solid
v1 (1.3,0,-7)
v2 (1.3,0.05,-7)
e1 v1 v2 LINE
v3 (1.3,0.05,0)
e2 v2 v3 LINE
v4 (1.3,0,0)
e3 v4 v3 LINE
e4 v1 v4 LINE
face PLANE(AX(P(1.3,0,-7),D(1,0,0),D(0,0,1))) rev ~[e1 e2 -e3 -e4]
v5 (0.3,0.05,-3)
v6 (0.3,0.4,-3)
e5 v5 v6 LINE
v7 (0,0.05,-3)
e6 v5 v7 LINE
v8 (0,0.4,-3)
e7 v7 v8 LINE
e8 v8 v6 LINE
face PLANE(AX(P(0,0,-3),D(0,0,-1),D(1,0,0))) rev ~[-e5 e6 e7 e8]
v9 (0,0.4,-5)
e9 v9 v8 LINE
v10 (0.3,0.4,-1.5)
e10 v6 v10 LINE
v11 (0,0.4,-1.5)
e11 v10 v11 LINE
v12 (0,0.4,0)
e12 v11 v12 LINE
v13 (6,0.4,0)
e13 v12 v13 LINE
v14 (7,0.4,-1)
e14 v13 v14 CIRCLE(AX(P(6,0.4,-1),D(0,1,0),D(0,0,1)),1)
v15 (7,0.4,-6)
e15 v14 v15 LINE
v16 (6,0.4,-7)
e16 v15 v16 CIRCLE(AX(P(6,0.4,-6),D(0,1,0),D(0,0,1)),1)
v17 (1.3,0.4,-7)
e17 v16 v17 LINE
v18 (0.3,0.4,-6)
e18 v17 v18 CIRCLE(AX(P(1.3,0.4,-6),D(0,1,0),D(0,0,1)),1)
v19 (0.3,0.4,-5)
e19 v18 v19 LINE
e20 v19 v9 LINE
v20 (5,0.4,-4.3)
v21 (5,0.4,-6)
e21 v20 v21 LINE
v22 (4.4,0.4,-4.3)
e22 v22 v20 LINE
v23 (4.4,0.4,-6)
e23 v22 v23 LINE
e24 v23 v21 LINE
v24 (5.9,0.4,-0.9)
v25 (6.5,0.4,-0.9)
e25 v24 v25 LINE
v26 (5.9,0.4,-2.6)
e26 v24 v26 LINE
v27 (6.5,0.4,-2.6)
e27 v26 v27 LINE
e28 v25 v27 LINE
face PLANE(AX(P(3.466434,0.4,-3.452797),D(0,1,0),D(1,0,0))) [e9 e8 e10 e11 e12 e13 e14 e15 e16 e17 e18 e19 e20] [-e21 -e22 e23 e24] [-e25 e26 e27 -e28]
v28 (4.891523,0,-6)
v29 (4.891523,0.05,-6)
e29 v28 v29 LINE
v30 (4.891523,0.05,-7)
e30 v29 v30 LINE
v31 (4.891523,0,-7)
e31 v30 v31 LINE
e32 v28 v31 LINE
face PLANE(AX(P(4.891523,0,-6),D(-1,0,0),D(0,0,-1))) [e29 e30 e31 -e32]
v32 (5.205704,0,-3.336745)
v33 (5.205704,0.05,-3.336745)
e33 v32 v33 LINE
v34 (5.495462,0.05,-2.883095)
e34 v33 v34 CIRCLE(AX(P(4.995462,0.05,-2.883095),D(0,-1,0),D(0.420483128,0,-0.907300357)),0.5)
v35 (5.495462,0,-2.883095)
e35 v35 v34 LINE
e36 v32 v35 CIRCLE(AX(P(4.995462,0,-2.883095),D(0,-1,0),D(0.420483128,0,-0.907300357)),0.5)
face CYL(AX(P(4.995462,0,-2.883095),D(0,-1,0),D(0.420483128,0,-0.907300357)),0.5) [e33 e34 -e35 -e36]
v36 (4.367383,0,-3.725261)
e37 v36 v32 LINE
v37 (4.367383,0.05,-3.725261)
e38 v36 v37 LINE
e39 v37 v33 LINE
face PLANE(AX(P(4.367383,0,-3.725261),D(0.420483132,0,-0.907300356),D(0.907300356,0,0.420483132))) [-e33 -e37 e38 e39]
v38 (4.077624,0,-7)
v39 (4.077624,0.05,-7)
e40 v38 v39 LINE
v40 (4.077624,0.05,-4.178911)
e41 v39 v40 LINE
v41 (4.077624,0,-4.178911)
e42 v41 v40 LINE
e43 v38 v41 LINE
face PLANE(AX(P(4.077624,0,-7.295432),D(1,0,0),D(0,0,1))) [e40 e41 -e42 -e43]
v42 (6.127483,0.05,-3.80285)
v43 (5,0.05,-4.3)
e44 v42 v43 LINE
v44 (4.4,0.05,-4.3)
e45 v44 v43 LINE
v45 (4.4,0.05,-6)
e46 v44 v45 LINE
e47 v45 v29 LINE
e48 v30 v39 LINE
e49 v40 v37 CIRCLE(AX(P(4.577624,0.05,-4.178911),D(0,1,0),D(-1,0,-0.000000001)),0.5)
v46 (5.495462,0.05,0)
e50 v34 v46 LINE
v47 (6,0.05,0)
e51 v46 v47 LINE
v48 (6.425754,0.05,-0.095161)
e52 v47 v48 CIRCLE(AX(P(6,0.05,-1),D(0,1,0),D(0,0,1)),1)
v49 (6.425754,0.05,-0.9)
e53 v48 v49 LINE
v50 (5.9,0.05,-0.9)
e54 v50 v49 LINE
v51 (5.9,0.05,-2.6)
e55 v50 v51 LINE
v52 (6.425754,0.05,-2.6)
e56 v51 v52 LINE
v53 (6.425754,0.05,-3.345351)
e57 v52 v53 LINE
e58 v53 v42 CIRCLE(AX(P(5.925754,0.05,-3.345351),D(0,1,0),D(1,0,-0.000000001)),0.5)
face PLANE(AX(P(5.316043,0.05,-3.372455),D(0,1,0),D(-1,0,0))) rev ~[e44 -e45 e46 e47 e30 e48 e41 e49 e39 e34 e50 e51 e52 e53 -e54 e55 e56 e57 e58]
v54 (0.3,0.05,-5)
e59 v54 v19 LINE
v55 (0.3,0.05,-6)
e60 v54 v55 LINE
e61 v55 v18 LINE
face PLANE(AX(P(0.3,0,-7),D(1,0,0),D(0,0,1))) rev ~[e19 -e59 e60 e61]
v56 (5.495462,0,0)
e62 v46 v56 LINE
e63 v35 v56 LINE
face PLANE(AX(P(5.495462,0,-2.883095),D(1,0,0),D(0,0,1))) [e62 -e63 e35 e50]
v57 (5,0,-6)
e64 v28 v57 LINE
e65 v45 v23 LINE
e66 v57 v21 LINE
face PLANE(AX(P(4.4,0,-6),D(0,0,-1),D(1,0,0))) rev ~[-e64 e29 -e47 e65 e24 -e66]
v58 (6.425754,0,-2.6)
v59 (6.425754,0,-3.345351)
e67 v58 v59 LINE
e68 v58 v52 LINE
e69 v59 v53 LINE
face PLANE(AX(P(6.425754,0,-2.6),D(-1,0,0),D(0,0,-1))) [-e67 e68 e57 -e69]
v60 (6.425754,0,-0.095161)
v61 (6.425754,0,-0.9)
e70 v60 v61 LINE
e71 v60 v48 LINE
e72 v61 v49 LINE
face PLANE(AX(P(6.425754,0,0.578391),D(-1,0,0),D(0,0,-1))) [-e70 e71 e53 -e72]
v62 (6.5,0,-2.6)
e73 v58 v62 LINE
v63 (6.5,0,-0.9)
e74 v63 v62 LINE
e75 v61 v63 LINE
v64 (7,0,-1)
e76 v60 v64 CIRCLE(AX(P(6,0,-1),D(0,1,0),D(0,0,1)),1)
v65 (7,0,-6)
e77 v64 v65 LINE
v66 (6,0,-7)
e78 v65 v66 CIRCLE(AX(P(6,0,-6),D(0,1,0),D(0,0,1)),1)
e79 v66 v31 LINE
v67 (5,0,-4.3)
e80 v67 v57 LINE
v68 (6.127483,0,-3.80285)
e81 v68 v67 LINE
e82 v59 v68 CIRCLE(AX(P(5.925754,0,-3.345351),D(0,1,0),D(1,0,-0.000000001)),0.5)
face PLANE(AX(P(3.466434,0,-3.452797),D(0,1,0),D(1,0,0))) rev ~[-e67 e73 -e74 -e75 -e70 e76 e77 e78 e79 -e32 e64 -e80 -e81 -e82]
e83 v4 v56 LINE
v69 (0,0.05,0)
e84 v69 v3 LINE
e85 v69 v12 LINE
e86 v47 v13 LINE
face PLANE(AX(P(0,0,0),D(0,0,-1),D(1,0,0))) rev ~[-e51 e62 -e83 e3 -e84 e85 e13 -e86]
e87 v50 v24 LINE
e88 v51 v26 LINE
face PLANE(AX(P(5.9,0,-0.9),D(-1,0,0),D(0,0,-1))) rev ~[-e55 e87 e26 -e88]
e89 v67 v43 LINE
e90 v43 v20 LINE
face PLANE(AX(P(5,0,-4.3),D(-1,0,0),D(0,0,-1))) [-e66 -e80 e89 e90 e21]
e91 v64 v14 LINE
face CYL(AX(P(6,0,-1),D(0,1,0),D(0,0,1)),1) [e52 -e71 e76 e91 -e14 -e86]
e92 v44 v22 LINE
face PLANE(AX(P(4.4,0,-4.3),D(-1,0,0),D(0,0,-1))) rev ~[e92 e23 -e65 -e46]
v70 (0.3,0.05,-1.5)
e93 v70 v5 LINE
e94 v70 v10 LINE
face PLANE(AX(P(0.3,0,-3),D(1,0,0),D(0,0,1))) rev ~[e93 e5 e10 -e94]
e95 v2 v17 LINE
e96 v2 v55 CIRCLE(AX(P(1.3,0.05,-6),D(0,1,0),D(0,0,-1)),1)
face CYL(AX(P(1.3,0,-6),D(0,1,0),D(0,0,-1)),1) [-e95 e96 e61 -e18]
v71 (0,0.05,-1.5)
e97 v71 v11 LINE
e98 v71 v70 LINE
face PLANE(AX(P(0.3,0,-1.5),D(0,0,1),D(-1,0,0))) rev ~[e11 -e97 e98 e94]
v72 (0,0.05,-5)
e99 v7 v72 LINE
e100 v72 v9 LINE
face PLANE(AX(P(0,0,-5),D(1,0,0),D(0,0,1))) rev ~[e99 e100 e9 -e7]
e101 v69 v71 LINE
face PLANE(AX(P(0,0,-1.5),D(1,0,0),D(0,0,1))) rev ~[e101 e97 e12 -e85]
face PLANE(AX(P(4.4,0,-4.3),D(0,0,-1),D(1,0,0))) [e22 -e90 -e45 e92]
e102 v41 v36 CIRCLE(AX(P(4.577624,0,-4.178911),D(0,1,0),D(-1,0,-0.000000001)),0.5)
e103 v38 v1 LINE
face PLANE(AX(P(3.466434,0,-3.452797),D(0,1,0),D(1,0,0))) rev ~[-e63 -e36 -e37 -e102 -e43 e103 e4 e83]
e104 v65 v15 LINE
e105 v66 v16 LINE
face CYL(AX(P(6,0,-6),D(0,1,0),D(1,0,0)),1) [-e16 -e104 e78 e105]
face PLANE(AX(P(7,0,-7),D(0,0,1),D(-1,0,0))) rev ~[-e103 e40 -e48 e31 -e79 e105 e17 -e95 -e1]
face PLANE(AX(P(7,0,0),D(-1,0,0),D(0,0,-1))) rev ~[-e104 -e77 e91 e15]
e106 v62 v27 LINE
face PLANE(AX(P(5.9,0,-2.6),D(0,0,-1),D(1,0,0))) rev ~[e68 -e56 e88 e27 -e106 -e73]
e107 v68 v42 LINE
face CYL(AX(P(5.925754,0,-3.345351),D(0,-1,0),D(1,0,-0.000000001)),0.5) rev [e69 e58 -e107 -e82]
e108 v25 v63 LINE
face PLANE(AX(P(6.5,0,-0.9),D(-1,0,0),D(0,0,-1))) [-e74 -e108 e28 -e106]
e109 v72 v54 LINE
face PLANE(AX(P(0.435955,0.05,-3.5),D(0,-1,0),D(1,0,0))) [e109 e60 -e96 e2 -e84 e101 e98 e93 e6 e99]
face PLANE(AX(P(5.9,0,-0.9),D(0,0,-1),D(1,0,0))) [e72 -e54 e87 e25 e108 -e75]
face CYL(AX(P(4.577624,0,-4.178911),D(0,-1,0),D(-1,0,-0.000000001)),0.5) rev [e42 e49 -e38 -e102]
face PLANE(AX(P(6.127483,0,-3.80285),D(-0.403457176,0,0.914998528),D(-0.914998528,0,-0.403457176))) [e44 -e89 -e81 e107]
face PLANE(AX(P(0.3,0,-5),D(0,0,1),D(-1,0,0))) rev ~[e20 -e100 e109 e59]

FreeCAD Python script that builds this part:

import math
import FreeCAD as App
import Part
import Sketcher

V = App.Vector
Q = App.Units.Quantity


def edges_at(feature, points):
    """Names of the edges that pass closest to the given points."""
    edges = feature.Shape.Edges
    near = lambda p: min(range(len(edges)), key=lambda i: edges[i].distToShape(Part.Vertex(*p))[0])
    return sorted({f"Edge{near(p) + 1}" for p in points})


def add_polygon(sketch, points):
    """Adds a closed chain of lines whose ends are joined by coincident constraints."""
    first, n = sketch.GeometryCount, len(points)
    for a, b in zip(points, points[1:] + points[:1]):
        sketch.addGeometry(Part.LineSegment(App.Vector(*a, 0), App.Vector(*b, 0)), False)
    for i in range(n):
        sketch.addConstraint(Sketcher.Constraint("Coincident", first + i, 2, first + (i + 1) % n, 1))

doc = App.newDocument("Part")
params = doc.addObject("Spreadsheet::Sheet", "Params")
for row, (alias, value) in enumerate([
    ("sketch1_width", "7 mm"),
    ("sketch1_height", "2 mm"),
    ("sketch1_width2", "6.7 mm"),
    ("sketch1_width3", "0.6 mm"),
    ("sketch1_height2", "1.7 mm"),
    ("pad1_length", "0.4 mm"),
    ("fillet_radius", "1 mm"),
    ("sketch2_radius", "0.5 mm"),
    ("sketch2_height", "7 mm"),
    ("sketch2_height2", "1.7 mm"),
    ("pocket1_length", "0.05 mm"),
], start=1):
    params.set(f"A{row}", alias)
    params.set(f"B{row}", "=" + value)
    params.setAlias(f"B{row}", alias)

body = doc.addObject("PartDesign::Body", "Body")

sketch1 = doc.addObject("Sketcher::SketchObject", "Sketch")
body.addObject(sketch1)
sketch1.AttachmentSupport = (doc.XZ_Plane, [""])
sketch1.MapMode = "FlatFace"
add_polygon(sketch1, [(0, 0), (7, 0), (7, -7), (0.3, -7), (0.3, -5), (0, -5), (0, -3), (0.3, -3), (0.3, -1.5), (0, -1.5)])
add_polygon(sketch1, [(6.5, -0.9), (5.9, -0.9), (5.9, -2.6), (6.5, -2.6)])
add_polygon(sketch1, [(5, -4.3), (4.4, -4.3), (4.4, -6), (5, -6)])
sketch1.addConstraint([
    Sketcher.Constraint("Horizontal", 0),
    Sketcher.Constraint("Vertical", 1),
    Sketcher.Constraint("Horizontal", 2),
    Sketcher.Constraint("Vertical", 3),
    Sketcher.Constraint("Horizontal", 4),
    Sketcher.Constraint("Vertical", 5),
    Sketcher.Constraint("Horizontal", 6),
    Sketcher.Constraint("Vertical", 7),
    Sketcher.Constraint("Horizontal", 8),
    Sketcher.Constraint("Vertical", 9),
    Sketcher.Constraint("Horizontal", 10),
    Sketcher.Constraint("Vertical", 11),
    Sketcher.Constraint("Horizontal", 12),
    Sketcher.Constraint("Vertical", 13),
    Sketcher.Constraint("Horizontal", 14),
    Sketcher.Constraint("Vertical", 15),
    Sketcher.Constraint("Horizontal", 16),
    Sketcher.Constraint("Vertical", 17),
    Sketcher.Constraint("Coincident", 9, 2, -1, 1),
    Sketcher.Constraint("PointOnObject", 4, 2, -2),
    Sketcher.Constraint("Vertical", 3, 2, 6, 2),
    Sketcher.Constraint("Equal", 12, 14),
    Sketcher.Constraint("Equal", 0, 1),
    Sketcher.Constraint("Equal", 3, 5),
    Sketcher.Constraint("Equal", 7, 9),
    Sketcher.Constraint("Equal", 13, 15),
    Sketcher.Constraint("DistanceX", 0, 1, 0, 2, Q("7 mm")),
    Sketcher.Constraint("DistanceY", 3, 1, 3, 2, Q("2 mm")),
    Sketcher.Constraint("DistanceX", 2, 2, 2, 1, Q("6.7 mm")),
    Sketcher.Constraint("DistanceX", 10, 2, 10, 1, Q("0.6 mm")),
    Sketcher.Constraint("DistanceY", 11, 2, 11, 1, Q("1.7 mm")),
    Sketcher.Constraint("DistanceY", 15, 2, -1, 1, Q("6 mm")),
    Sketcher.Constraint("DistanceX", -1, 1, 16, 2, Q("5 mm")),
    Sketcher.Constraint("DistanceX", -1, 1, 10, 2, Q("5.9 mm")),
    Sketcher.Constraint("DistanceY", 10, 2, -1, 1, Q("0.9 mm")),
])
sketch1.setExpression("Constraints[44]", "Params.sketch1_width")
sketch1.setExpression("Constraints[45]", "Params.sketch1_height")
sketch1.setExpression("Constraints[46]", "Params.sketch1_width2")
sketch1.setExpression("Constraints[47]", "Params.sketch1_width3")
sketch1.setExpression("Constraints[48]", "Params.sketch1_height2")
pad1 = doc.addObject("PartDesign::Pad", "Pad")
body.addObject(pad1)
pad1.Profile = sketch1
pad1.setExpression("Length", "Params.pad1_length")
pad1.Reversed = True
doc.recompute()

fillet = doc.addObject("PartDesign::Fillet", "Fillet")
body.addObject(fillet)
fillet.Base = (pad1, edges_at(pad1, [(0.3, 0.2, -7), (7, 0.2, -7), (7, 0.2, 0)]))
fillet.setExpression("Radius", "Params.fillet_radius")

sketch2 = doc.addObject("Sketcher::SketchObject", "Sketch001")
body.addObject(sketch2)
sketch2.AttachmentSupport = (doc.XZ_Plane, [""])
sketch2.MapMode = "FlatFace"
sketch2.addGeometry(Part.LineSegment(V(4.891523, -6, 0), V(5, -6, 0)), False)
sketch2.addGeometry(Part.LineSegment(V(5, -6, 0), V(5, -4.3, 0)), False)
sketch2.addGeometry(Part.LineSegment(V(5, -4.3, 0), V(6.127483, -3.80285, 0)), False)
sketch2.addGeometry(Part.ArcOfCircle(Part.Circle(V(5.925754, -3.345351, 0), V(0, 0, 1), 0.5), math.radians(-66.205518), math.radians(0)), False)
sketch2.addGeometry(Part.LineSegment(V(6.425754, -3.345351, 0), V(6.425754, -2.6, 0)), False)
sketch2.addGeometry(Part.LineSegment(V(6.425754, -2.6, 0), V(6.5, -2.6, 0)), False)
sketch2.addGeometry(Part.LineSegment(V(6.5, -2.6, 0), V(6.5, -0.9, 0)), False)
sketch2.addGeometry(Part.LineSegment(V(6.5, -0.9, 0), V(6.425754, -0.9, 0)), False)
sketch2.addGeometry(Part.LineSegment(V(6.425754, -0.9, 0), V(6.425754, 0.578391, 0)), False)
sketch2.addGeometry(Part.LineSegment(V(6.425754, 0.578391, 0), V(5.495462, 0.578391, 0)), False)
sketch2.addGeometry(Part.LineSegment(V(5.495462, 0.578391, 0), V(5.495462, -2.883095, 0)), False)
sketch2.addGeometry(Part.ArcOfCircle(Part.Circle(V(4.995462, -2.883095, 0), V(0, 0, 1), 0.5), math.radians(-65.134907), math.radians(0)), False)
sketch2.addGeometry(Part.LineSegment(V(5.205704, -3.336745, 0), V(4.367383, -3.725261, 0)), False)
sketch2.addGeometry(Part.ArcOfCircle(Part.Circle(V(4.577624, -4.178911, 0), V(0, 0, 1), 0.5), math.radians(114.865093), math.radians(180)), False)
sketch2.addGeometry(Part.LineSegment(V(4.077624, -4.178911, 0), V(4.077624, -7.295432, 0)), False)
sketch2.addGeometry(Part.LineSegment(V(4.077624, -7.295432, 0), V(4.891523, -7.295432, 0)), False)
sketch2.addGeometry(Part.LineSegment(V(4.891523, -7.295432, 0), V(4.891523, -6, 0)), False)
add_polygon(sketch2, [(-0.42809, 0), (-0.42809, -7), (1.3, -7), (1.3, 0)])
sketch2.addConstraint([
    Sketcher.Constraint("Coincident", 0, 2, 1, 1),
    Sketcher.Constraint("Coincident", 1, 2, 2, 1),
    Sketcher.Constraint("Tangent", 2, 2, 3, 1),
    Sketcher.Constraint("Tangent", 3, 2, 4, 1),
    Sketcher.Constraint("Coincident", 4, 2, 5, 1),
    Sketcher.Constraint("Coincident", 5, 2, 6, 1),
    Sketcher.Constraint("Coincident", 6, 2, 7, 1),
    Sketcher.Constraint("Coincident", 7, 2, 8, 1),
    Sketcher.Constraint("Coincident", 8, 2, 9, 1),
    Sketcher.Constraint("Coincident", 9, 2, 10, 1),
    Sketcher.Constraint("Tangent", 10, 2, 11, 2),
    Sketcher.Constraint("Tangent", 11, 1, 12, 1),
    Sketcher.Constraint("Tangent", 12, 2, 13, 1),
    Sketcher.Constraint("Tangent", 13, 2, 14, 1),
    Sketcher.Constraint("Coincident", 14, 2, 15, 1),
    Sketcher.Constraint("Coincident", 15, 2, 16, 1),
    Sketcher.Constraint("Coincident", 16, 2, 0, 1),
    Sketcher.Constraint("Horizontal", 0),
    Sketcher.Constraint("Vertical", 1),
    Sketcher.Constraint("Vertical", 4),
    Sketcher.Constraint("Horizontal", 5),
    Sketcher.Constraint("Vertical", 6),
    Sketcher.Constraint("Horizontal", 7),
    Sketcher.Constraint("Vertical", 8),
    Sketcher.Constraint("Horizontal", 9),
    Sketcher.Constraint("Vertical", 10),
    Sketcher.Constraint("Vertical", 14),
    Sketcher.Constraint("Horizontal", 15),
    Sketcher.Constraint("Vertical", 16),
    Sketcher.Constraint("Vertical", 17),
    Sketcher.Constraint("Horizontal", 18),
    Sketcher.Constraint("Vertical", 19),
    Sketcher.Constraint("Horizontal", 20),
    Sketcher.Constraint("Equal", 3, 11),
    Sketcher.Constraint("Equal", 11, 13),
    Sketcher.Constraint("PointOnObject", 19, 2, -1),
    Sketcher.Constraint("Vertical", 4, 2, 7, 2),
    Sketcher.Constraint("Equal", 1, 6),
    Sketcher.Constraint("Radius", 3, Q("0.5 mm")),
    Sketcher.Constraint("DistanceY", 17, 2, 17, 1, Q("7 mm")),
    Sketcher.Constraint("DistanceY", 1, 1, 1, 2, Q("1.7 mm")),
    Sketcher.Constraint("DistanceX", -1, 1, 0, 2, Q("5 mm")),
    Sketcher.Constraint("DistanceY", 0, 2, -1, 1, Q("6 mm")),
    Sketcher.Constraint("DistanceY", 4, 2, -1, 1, Q("2.6 mm")),
    Sketcher.Constraint("DistanceX", -1, 1, 5, 2, Q("6.5 mm")),
    Sketcher.Constraint("DistanceX", -1, 1, 18, 2, Q("1.3 mm")),
    Sketcher.Constraint("DistanceX", 15, 1, 15, 2, Q("0.813899 mm")),
    Sketcher.Constraint("DistanceX", 18, 1, 18, 2, Q("1.72809 mm")),
    Sketcher.Constraint("DistanceY", 4, 1, 4, 2, Q("0.745351 mm")),
    Sketcher.Constraint("DistanceY", 8, 1, 8, 2, Q("1.478391 mm")),
    Sketcher.Constraint("DistanceY", 14, 2, 14, 1, Q("3.116521 mm")),
    Sketcher.Constraint("DistanceY", 16, 1, 16, 2, Q("1.295432 mm")),
    Sketcher.Constraint("DistanceY", 2, 2, 3, 3, Q("0.457499 mm")),
    Sketcher.Constraint("DistanceX", 0, 1, 0, 2, Q("0.108477 mm")),
    Sketcher.Constraint("DistanceX", 9, 2, 9, 1, Q("0.930292 mm")),
    Sketcher.Constraint("DistanceY", 10, 2, 10, 1, Q("3.461486 mm")),
])
sketch2.setExpression("Constraints[42]", "Params.sketch2_radius")
sketch2.setExpression("Constraints[43]", "Params.sketch2_height")
sketch2.setExpression("Constraints[44]", "Params.sketch2_height2")
pocket1 = doc.addObject("PartDesign::Pocket", "Pocket")
body.addObject(pocket1)
pocket1.Profile = sketch2
pocket1.setExpression("Length", "Params.pocket1_length")

doc.recompute()
